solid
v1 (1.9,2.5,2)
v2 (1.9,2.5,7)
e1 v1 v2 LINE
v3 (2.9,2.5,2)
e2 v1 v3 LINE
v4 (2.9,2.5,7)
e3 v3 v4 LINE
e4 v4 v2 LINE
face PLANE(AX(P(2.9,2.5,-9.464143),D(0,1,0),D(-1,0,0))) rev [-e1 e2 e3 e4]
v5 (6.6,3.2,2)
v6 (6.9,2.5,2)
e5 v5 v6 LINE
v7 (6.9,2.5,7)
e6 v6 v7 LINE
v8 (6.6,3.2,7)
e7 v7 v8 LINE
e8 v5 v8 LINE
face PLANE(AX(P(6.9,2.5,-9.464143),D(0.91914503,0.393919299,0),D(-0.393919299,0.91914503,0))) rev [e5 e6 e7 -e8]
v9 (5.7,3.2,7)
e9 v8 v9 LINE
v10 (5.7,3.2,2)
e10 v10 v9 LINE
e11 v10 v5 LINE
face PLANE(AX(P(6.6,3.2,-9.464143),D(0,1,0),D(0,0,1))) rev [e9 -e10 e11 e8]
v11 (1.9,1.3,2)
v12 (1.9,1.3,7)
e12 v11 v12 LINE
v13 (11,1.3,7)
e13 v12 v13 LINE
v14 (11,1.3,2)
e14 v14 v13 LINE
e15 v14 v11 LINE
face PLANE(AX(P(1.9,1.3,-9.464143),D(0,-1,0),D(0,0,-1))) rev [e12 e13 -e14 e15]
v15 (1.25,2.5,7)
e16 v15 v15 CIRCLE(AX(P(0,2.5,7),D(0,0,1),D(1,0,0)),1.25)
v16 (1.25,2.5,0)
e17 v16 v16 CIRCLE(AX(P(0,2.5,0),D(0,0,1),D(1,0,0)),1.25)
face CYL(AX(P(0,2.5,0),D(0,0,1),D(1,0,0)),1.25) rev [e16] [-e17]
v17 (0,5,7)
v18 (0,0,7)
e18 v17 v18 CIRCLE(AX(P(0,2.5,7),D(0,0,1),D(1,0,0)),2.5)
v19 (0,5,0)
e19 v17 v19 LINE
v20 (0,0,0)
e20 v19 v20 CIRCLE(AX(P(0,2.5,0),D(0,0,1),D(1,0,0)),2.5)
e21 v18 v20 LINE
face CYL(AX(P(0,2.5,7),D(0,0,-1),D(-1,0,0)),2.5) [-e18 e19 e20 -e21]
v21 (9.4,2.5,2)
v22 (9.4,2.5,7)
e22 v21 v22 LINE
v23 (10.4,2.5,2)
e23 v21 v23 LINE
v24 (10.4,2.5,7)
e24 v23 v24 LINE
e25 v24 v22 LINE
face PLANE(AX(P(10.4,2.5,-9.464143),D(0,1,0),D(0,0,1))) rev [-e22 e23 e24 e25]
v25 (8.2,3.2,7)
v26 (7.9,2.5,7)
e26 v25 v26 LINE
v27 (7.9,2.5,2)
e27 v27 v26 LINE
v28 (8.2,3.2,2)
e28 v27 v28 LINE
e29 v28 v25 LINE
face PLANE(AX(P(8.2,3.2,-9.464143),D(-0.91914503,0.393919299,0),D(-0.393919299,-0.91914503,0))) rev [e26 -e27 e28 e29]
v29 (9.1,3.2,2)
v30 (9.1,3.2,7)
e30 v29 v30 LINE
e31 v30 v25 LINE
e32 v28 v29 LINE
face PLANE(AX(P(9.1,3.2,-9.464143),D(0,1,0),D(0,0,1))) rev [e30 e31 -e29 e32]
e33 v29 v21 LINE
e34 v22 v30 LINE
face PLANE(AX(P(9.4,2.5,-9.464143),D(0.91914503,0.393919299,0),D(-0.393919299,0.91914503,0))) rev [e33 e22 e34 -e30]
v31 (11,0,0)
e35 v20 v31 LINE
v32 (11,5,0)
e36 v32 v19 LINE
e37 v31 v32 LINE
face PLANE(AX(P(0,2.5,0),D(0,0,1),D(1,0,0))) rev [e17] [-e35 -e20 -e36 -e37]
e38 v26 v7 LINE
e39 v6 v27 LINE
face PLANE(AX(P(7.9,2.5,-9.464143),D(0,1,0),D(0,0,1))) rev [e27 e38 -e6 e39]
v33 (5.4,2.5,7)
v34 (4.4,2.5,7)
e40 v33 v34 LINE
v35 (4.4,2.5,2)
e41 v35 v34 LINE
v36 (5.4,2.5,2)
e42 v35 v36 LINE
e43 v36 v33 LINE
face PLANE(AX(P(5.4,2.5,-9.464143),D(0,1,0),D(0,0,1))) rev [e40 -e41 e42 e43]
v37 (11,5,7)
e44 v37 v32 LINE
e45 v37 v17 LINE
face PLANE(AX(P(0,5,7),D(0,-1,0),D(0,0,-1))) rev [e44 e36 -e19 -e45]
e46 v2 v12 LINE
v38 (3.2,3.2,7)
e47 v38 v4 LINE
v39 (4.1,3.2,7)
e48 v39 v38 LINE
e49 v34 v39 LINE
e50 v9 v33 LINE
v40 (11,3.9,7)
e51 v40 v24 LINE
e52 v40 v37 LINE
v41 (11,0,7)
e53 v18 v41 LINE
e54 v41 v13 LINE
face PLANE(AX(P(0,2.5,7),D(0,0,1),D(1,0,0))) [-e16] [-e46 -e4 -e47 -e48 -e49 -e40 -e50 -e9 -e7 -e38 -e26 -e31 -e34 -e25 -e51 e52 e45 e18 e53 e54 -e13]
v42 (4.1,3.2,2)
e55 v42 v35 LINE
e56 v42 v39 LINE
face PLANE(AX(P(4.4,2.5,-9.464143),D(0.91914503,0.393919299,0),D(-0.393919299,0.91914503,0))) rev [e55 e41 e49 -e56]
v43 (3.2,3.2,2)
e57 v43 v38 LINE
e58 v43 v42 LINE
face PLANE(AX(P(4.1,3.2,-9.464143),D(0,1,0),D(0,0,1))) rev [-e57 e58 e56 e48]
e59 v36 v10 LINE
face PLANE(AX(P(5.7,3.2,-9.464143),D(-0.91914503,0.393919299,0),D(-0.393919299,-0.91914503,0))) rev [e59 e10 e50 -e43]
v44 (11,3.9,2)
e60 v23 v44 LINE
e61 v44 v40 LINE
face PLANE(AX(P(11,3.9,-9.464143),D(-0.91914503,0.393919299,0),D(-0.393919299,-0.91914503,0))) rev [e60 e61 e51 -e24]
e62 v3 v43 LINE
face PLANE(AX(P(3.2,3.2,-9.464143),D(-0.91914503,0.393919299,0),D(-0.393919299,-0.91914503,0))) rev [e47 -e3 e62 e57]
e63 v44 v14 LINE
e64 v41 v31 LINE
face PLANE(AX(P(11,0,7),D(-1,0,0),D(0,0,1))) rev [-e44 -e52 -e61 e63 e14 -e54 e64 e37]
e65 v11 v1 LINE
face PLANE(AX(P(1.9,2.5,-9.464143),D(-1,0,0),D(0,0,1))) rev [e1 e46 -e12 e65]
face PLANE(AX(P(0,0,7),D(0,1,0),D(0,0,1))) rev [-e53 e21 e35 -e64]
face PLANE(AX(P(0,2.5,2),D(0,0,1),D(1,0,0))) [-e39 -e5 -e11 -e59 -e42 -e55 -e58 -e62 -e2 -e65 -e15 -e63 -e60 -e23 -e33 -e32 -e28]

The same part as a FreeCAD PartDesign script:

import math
import FreeCAD as App
import Part
import Sketcher
Q = App.Units.Quantity


def add_polygon(sketch, points):
    """Adds a closed chain of lines whose ends are joined by coincident constraints."""
    first, n = sketch.GeometryCount, len(points)
    for a, b in zip(points, points[1:] + points[:1]):
        sketch.addGeometry(Part.LineSegment(App.Vector(*a, 0), App.Vector(*b, 0)), False)
    for i in range(n):
        sketch.addConstraint(Sketcher.Constraint("Coincident", first + i, 2, first + (i + 1) % n, 1))

doc = App.newDocument("Part")
body = doc.addObject("PartDesign::Body", "Body")

sketch1 = body.newObject("Sketcher::SketchObject", "Sketch")
sketch1.AttachmentSupport = (doc.getObject("XY_Plane"), [""])
sketch1.MapMode = "FlatFace"
sketch1.addGeometry([
    Part.LineSegment(App.Vector(0, 0, 0), App.Vector(11, 0, 0)),
    Part.LineSegment(App.Vector(11, 0, 0), App.Vector(11, 5, 0)),
    Part.LineSegment(App.Vector(11, 5, 0), App.Vector(0, 5, 0)),
    Part.ArcOfCircle(Part.Circle(App.Vector(0, 2.5, 0), App.Vector(0, 0, 1), 2.5), math.radians(90), math.radians(270)),
], False)
sketch1.addConstraint([
    Sketcher.Constraint("Coincident", 0, 2, 1, 1),
    Sketcher.Constraint("Coincident", 1, 2, 2, 1),
    Sketcher.Constraint("Tangent", 2, 2, 3, 1),
    Sketcher.Constraint("Tangent", 3, 2, 0, 1),
    Sketcher.Constraint("Horizontal", 0),
    Sketcher.Constraint("Vertical", 1),
    Sketcher.Constraint("Horizontal", 2),
    Sketcher.Constraint("Coincident", 3, 2, -1, 1),
    Sketcher.Constraint("Radius", 3, Q("2.5 mm")),
    Sketcher.Constraint("DistanceX", 0, 1, 0, 2, Q("11 mm")),
])
pad1 = body.newObject("PartDesign::Pad", "Pad")
pad1.Profile = sketch1
pad1.Length = 7

sketch2 = body.newObject("Sketcher::SketchObject", "Sketch001")
sketch2.AttachmentSupport = (doc.getObject("XY_Plane"), [""])
sketch2.MapMode = "FlatFace"
sketch2.AttachmentOffset = App.Placement(App.Vector(0, 0, 7), App.Rotation())
add_polygon(sketch2, [(11, 3.9), (10.4, 2.5), (9.4, 2.5), (9.1, 3.2), (8.2, 3.2), (7.9, 2.5), (6.9, 2.5), (6.6, 3.2), (5.7, 3.2), (5.4, 2.5), (4.4, 2.5), (4.1, 3.2), (3.2, 3.2), (2.9, 2.5), (1.9, 2.5), (1.9, 1.3), (11, 1.3)])
sketch2.addConstraint([
    Sketcher.Constraint("Horizontal", 1),
    Sketcher.Constraint("Horizontal", 3),
    Sketcher.Constraint("Horizontal", 5),
    Sketcher.Constraint("Horizontal", 7),
    Sketcher.Constraint("Horizontal", 9),
    Sketcher.Constraint("Horizontal", 11),
    Sketcher.Constraint("Horizontal", 13),
    Sketcher.Constraint("Vertical", 14),
    Sketcher.Constraint("Horizontal", 15),
    Sketcher.Constraint("Vertical", 16),
    Sketcher.Constraint("Parallel", 0, 4),
    Sketcher.Constraint("Parallel", 2, 6),
    Sketcher.Constraint("Parallel", 4, 8),
    Sketcher.Constraint("Parallel", 6, 10),
    Sketcher.Constraint("Parallel", 8, 12),
    Sketcher.Constraint("Horizontal", 1, 2, 4, 2),
    Sketcher.Constraint("Horizontal", 3, 2, 6, 2),
    Sketcher.Constraint("Horizontal", 5, 2, 8, 2),
    Sketcher.Constraint("Horizontal", 7, 2, 10, 2),
    Sketcher.Constraint("Horizontal", 9, 2, 12, 2),
    Sketcher.Constraint("Equal", 1, 5),
    Sketcher.Constraint("Equal", 3, 7),
    Sketcher.Constraint("Equal", 5, 9),
    Sketcher.Constraint("Equal", 7, 11),
    Sketcher.Constraint("Equal", 9, 13),
    Sketcher.Constraint("Equal", 2, 4),
    Sketcher.Constraint("DistanceX", 1, 2, 1, 1, Q("1 mm")),
    Sketcher.Constraint("DistanceX", 3, 2, 3, 1, Q("0.9 mm")),
    Sketcher.Constraint("DistanceX", 15, 1, 15, 2, Q("9.1 mm")),
    Sketcher.Constraint("DistanceY", 14, 2, 14, 1, Q("1.2 mm")),
    Sketcher.Constraint("DistanceY", 16, 1, 16, 2, Q("2.6 mm")),
    Sketcher.Constraint("DistanceX", -1, 1, 15, 2, Q("11 mm")),
    Sketcher.Constraint("DistanceX", -1, 1, 0, 2, Q("10.4 mm")),
    Sketcher.Constraint("DistanceY", -1, 1, 0, 2, Q("2.5 mm")),
])
pocket1 = body.newObject("PartDesign::Pocket", "Pocket")
pocket1.Profile = sketch2
pocket1.Length = 5

sketch3 = body.newObject("Sketcher::SketchObject", "Sketch002")
sketch3.AttachmentSupport = (doc.getObject("XY_Plane"), [""])
sketch3.MapMode = "FlatFace"
sketch3.AttachmentOffset = App.Placement(App.Vector(0, 0, 7), App.Rotation())
sketch3.addGeometry(Part.Circle(App.Vector(0, 2.5, 0), App.Vector(0, 0, 1), 1.2), False)
sketch3.addConstraint([
    Sketcher.Constraint("PointOnObject", 0, 3, -2),
    Sketcher.Constraint("Diameter", 0, Q("2.5 mm")),
    Sketcher.Constraint("DistanceY", -1, 1, 0, 3, Q("2.5 mm")),
])
pocket2 = body.newObject("PartDesign::Pocket", "Pocket001")
pocket2.Profile = sketch3
pocket2.Type = "ThroughAll"

doc.recompute()
